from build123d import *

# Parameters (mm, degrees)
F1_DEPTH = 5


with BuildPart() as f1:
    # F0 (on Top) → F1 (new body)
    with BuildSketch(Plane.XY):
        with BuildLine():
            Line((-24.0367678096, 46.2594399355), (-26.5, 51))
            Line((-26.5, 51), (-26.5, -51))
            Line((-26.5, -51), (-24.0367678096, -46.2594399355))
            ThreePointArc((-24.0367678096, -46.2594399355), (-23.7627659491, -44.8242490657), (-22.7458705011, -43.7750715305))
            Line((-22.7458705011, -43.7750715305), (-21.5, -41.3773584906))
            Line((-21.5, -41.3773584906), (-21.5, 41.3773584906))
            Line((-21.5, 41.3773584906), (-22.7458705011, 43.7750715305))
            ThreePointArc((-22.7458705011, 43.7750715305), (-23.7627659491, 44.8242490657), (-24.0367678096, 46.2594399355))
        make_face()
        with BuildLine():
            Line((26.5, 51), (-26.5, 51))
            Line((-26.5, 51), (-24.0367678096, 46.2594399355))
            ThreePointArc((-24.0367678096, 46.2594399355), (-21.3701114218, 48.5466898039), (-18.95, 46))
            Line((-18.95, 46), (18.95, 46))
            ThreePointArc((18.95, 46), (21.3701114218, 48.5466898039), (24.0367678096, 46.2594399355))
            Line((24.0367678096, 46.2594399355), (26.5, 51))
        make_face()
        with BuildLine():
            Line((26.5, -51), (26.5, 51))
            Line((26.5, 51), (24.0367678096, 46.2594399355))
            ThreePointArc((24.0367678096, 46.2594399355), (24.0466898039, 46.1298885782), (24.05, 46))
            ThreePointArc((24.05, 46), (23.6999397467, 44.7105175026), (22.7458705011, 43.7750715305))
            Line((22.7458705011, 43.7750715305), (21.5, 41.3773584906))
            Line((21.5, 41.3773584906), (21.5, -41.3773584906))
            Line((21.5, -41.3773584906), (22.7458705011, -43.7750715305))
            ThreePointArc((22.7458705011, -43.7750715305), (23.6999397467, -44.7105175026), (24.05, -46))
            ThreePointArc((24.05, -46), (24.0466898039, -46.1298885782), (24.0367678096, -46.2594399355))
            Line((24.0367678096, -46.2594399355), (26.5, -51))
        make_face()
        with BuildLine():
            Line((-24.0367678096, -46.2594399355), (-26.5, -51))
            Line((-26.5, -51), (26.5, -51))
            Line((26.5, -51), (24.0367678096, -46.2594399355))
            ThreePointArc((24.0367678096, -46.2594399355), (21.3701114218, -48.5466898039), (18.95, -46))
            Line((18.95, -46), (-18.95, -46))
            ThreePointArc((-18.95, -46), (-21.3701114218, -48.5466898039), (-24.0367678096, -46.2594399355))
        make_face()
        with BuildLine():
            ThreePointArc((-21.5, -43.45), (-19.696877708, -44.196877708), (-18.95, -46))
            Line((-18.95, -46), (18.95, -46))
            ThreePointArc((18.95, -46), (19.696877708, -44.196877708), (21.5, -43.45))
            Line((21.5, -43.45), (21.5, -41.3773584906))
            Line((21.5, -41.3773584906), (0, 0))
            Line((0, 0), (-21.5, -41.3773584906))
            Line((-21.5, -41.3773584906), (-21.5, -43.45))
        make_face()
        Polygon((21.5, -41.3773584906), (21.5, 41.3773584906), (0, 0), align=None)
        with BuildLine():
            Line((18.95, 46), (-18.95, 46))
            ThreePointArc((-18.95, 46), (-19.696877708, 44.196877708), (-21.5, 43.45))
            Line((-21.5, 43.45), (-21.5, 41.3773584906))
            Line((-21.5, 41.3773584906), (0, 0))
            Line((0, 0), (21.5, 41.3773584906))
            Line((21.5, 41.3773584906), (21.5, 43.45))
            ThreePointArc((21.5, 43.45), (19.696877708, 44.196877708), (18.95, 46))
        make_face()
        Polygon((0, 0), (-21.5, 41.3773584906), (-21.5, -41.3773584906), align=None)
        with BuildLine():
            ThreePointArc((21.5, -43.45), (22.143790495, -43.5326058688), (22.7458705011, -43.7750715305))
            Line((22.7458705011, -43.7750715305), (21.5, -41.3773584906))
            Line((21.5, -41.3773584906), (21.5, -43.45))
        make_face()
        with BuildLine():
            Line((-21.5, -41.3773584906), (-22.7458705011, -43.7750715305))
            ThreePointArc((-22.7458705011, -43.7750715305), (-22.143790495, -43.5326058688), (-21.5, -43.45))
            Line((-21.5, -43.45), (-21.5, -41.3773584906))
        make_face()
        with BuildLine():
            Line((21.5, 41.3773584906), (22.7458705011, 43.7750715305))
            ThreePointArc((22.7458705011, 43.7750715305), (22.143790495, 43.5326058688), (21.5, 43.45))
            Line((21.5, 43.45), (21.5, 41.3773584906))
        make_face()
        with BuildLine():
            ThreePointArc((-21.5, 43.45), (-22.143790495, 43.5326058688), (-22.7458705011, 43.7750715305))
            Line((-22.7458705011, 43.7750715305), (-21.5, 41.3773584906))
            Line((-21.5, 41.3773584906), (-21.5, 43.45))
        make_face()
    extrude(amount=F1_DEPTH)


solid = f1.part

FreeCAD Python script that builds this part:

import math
import FreeCAD as App
import Part
import Sketcher
Q = App.Units.Quantity


def add_polygon(sketch, points):
    """Adds a closed chain of lines whose ends are joined by coincident constraints."""
    first, n = sketch.GeometryCount, len(points)
    for a, b in zip(points, points[1:] + points[:1]):
        sketch.addGeometry(Part.LineSegment(App.Vector(*a, 0), App.Vector(*b, 0)), False)
    for i in range(n):
        sketch.addConstraint(Sketcher.Constraint("Coincident", first + i, 2, first + (i + 1) % n, 1))

doc = App.newDocument("Part")
body = doc.addObject("PartDesign::Body", "Body")

# Sketch on XY plane
sketch1 = body.newObject("Sketcher::SketchObject", "Sketch")
sketch1.AttachmentSupport = (doc.getObject("XY_Plane"), [""])
sketch1.MapMode = "FlatFace"
add_polygon(sketch1, [(-26.5, 51), (-26.5, -51), (26.5, -51), (26.5, 51)])  # lines 0-3
sketch1.addGeometry(Part.ArcOfCircle(Part.Circle(App.Vector(-21.5, -46, 0), App.Vector(0, 0, 1), 2.55), math.radians(0), math.radians(90)), False)  # 4
sketch1.addGeometry(Part.ArcOfCircle(Part.Circle(App.Vector(-21.5, -46, 0), App.Vector(0, 0, 1), 2.55), math.radians(-174), math.radians(0)), False)  # 5
sketch1.addGeometry(Part.ArcOfCircle(Part.Circle(App.Vector(-21.5, -46, 0), App.Vector(0, 0, 1), 2.55), math.radians(119), math.radians(186)), False)  # 6
sketch1.addGeometry(Part.ArcOfCircle(Part.Circle(App.Vector(-21.5, -46, 0), App.Vector(0, 0, 1), 2.55), math.radians(90), math.radians(119)), False)  # 7
sketch1.addGeometry(Part.ArcOfCircle(Part.Circle(App.Vector(21.5, -46, 0), App.Vector(0, 0, 1), 2.55), math.radians(0), math.radians(61)), False)  # 8
sketch1.addGeometry(Part.ArcOfCircle(Part.Circle(App.Vector(21.5, -46, 0), App.Vector(0, 0, 1), 2.55), math.radians(-5.84), math.radians(0)), False)  # 9
sketch1.addGeometry(Part.ArcOfCircle(Part.Circle(App.Vector(21.5, -46, 0), App.Vector(0, 0, 1), 2.55), math.radians(180), math.radians(354)), False)  # 10
sketch1.addGeometry(Part.ArcOfCircle(Part.Circle(App.Vector(21.5, -46, 0), App.Vector(0, 0, 1), 2.55), math.radians(90), math.radians(180)), False)  # 11
sketch1.addGeometry(Part.ArcOfCircle(Part.Circle(App.Vector(21.5, -46, 0), App.Vector(0, 0, 1), 2.55), math.radians(61), math.radians(90)), False)  # 12
sketch1.addGeometry(Part.ArcOfCircle(Part.Circle(App.Vector(-21.5, 46, 0), App.Vector(0, 0, 1), 2.55), math.radians(174), math.radians(241)), False)  # 13
sketch1.addGeometry(Part.ArcOfCircle(Part.Circle(App.Vector(-21.5, 46, 0), App.Vector(0, 0, 1), 2.55), math.radians(0), math.radians(174)), False)  # 14
sketch1.addGeometry(Part.ArcOfCircle(Part.Circle(App.Vector(-21.5, 46, 0), App.Vector(0, 0, 1), 2.55), math.radians(-90), math.radians(0)), False)  # 15
sketch1.addGeometry(Part.ArcOfCircle(Part.Circle(App.Vector(-21.5, 46, 0), App.Vector(0, 0, 1), 2.55), math.radians(-119), math.radians(-90)), False)  # 16
sketch1.addGeometry(Part.ArcOfCircle(Part.Circle(App.Vector(21.5, 46, 0), App.Vector(0, 0, 1), 2.55), math.radians(180), math.radians(270)), False)  # 17
sketch1.addGeometry(Part.ArcOfCircle(Part.Circle(App.Vector(21.5, 46, 0), App.Vector(0, 0, 1), 2.55), math.radians(6), math.radians(180)), False)  # 18
sketch1.addGeometry(Part.ArcOfCircle(Part.Circle(App.Vector(21.5, 46, 0), App.Vector(0, 0, 1), 2.55), math.radians(0), math.radians(5.84)), False)  # 19
sketch1.addGeometry(Part.ArcOfCircle(Part.Circle(App.Vector(21.5, 46, 0), App.Vector(0, 0, 1), 2.55), math.radians(-61), math.radians(0)), False)  # 20
sketch1.addGeometry(Part.ArcOfCircle(Part.Circle(App.Vector(21.5, 46, 0), App.Vector(0, 0, 1), 2.55), math.radians(-90), math.radians(-61)), False)  # 21
sketch1.addConstraint(Sketcher.Constraint("Tangent", 4, 1, 5, 2))
sketch1.addConstraint(Sketcher.Constraint("Tangent", 5, 1, 6, 2))
sketch1.addConstraint(Sketcher.Constraint("Tangent", 6, 1, 7, 2))
sketch1.addConstraint(Sketcher.Constraint("Tangent", 7, 1, 4, 2))
sketch1.addConstraint(Sketcher.Constraint("Tangent", 8, 1, 9, 2))
sketch1.addConstraint(Sketcher.Constraint("Tangent", 9, 1, 10, 2))
sketch1.addConstraint(Sketcher.Constraint("Tangent", 10, 1, 11, 2))
sketch1.addConstraint(Sketcher.Constraint("Tangent", 11, 1, 12, 2))
sketch1.addConstraint(Sketcher.Constraint("Tangent", 12, 1, 8, 2))
sketch1.addConstraint(Sketcher.Constraint("Tangent", 13, 1, 14, 2))
sketch1.addConstraint(Sketcher.Constraint("Tangent", 14, 1, 15, 2))
sketch1.addConstraint(Sketcher.Constraint("Tangent", 15, 1, 16, 2))
sketch1.addConstraint(Sketcher.Constraint("Tangent", 16, 1, 13, 2))
sketch1.addConstraint(Sketcher.Constraint("Tangent", 17, 1, 18, 2))
sketch1.addConstraint(Sketcher.Constraint("Tangent", 18, 1, 19, 2))
sketch1.addConstraint(Sketcher.Constraint("Tangent", 19, 1, 20, 2))
sketch1.addConstraint(Sketcher.Constraint("Tangent", 20, 1, 21, 2))
sketch1.addConstraint(Sketcher.Constraint("Tangent", 21, 1, 17, 2))
sketch1.addConstraint(Sketcher.Constraint("Vertical", 0))
sketch1.addConstraint(Sketcher.Constraint("Horizontal", 1))
sketch1.addConstraint(Sketcher.Constraint("Vertical", 2))
sketch1.addConstraint(Sketcher.Constraint("Horizontal", 3))
sketch1.addConstraint(Sketcher.Constraint("Coincident", 10, 3, 8, 3))
sketch1.addConstraint(Sketcher.Constraint("Coincident", 19, 3, 17, 3))
sketch1.addConstraint(Sketcher.Constraint("Equal", 4, 5))
sketch1.addConstraint(Sketcher.Constraint("Equal", 7, 8))
sketch1.addConstraint(Sketcher.Constraint("Equal", 12, 13))
sketch1.addConstraint(Sketcher.Constraint("Equal", 13, 14))
sketch1.addConstraint(Sketcher.Constraint("Equal", 16, 17))
sketch1.addConstraint(Sketcher.Constraint("Symmetric", 8, 3, 13, 3, -1, 1))
sketch1.addConstraint(Sketcher.Constraint("Symmetric", 4, 3, 17, 3, -1, 1))
sketch1.addConstraint(Sketcher.Constraint("Symmetric", 0, 2, 2, 2, -1, 1))
sketch1.addConstraint(Sketcher.Constraint("Symmetric", 4, 3, 8, 3, -2))
sketch1.addConstraint(Sketcher.Constraint("Horizontal", 12, 3, 4, 1))
sketch1.addConstraint(Sketcher.Constraint("Horizontal", 4, 1, 8, 1))
sketch1.addConstraint(Sketcher.Constraint("Horizontal", 5, 1, 9, 1))
sketch1.addConstraint(Sketcher.Constraint("Horizontal", 8, 1, 10, 1))
sketch1.addConstraint(Sketcher.Constraint("Horizontal", 6, 1, 12, 1))
sketch1.addConstraint(Sketcher.Constraint("Horizontal", 21, 3, 14, 1))
sketch1.addConstraint(Sketcher.Constraint("Horizontal", 14, 1, 17, 1))
sketch1.addConstraint(Sketcher.Constraint("Horizontal", 13, 1, 18, 1))
sketch1.addConstraint(Sketcher.Constraint("Horizontal", 17, 1, 19, 1))
sketch1.addConstraint(Sketcher.Constraint("Horizontal", 16, 1, 20, 1))
sketch1.addConstraint(Sketcher.Constraint("Vertical", 16, 3, 7, 1))
sketch1.addConstraint(Sketcher.Constraint("Vertical", 21, 3, 11, 1))
sketch1.addConstraint(Sketcher.Constraint("Vertical", 5, 1, 13, 1))
sketch1.addConstraint(Sketcher.Constraint("Vertical", 7, 1, 15, 1))
sketch1.addConstraint(Sketcher.Constraint("Vertical", 6, 1, 16, 1))
sketch1.addConstraint(Sketcher.Constraint("Vertical", 11, 1, 21, 1))
sketch1.addConstraint(Sketcher.Constraint("DistanceX", 1, 1, 1, 2, Q("53 mm")))
sketch1.addConstraint(Sketcher.Constraint("DistanceY", 0, 2, 0, 1, Q("102 mm")))
sketch1.addConstraint(Sketcher.Constraint("Radius", 4, Q("2.55 mm")))
sketch1.addConstraint(Sketcher.Constraint("DistanceY", 4, 3, -1, 1, Q("46 mm")))
sketch1.addConstraint(Sketcher.Constraint("DistanceX", 4, 3, 8, 3, Q("43 mm")))
sketch1.addConstraint(Sketcher.Constraint("DistanceY", 5, 1, -1, 1, Q("46.25944 mm")))
sketch1.addConstraint(Sketcher.Constraint("DistanceX", 6, 1, -1, 1, Q("22.745871 mm")))
pad1 = body.newObject("PartDesign::Pad", "Pad")
pad1.Profile = sketch1
pad1.Length = 5

doc.recompute()
